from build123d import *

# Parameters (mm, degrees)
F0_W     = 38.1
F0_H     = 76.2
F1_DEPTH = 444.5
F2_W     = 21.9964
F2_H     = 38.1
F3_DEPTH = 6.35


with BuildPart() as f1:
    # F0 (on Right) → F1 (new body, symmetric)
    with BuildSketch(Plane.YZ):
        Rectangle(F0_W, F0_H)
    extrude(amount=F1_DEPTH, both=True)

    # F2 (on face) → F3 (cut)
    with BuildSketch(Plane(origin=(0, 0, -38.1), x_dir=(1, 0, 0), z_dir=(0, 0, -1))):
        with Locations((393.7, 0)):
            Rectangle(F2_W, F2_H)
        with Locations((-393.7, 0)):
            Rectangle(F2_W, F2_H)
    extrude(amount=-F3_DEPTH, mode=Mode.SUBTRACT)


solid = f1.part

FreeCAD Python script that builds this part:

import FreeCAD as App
import Part
import Sketcher

V = App.Vector
Q = App.Units.Quantity


def add_polygon(sketch, points):
    """Adds a closed chain of lines whose ends are joined by coincident constraints."""
    first, n = sketch.GeometryCount, len(points)
    for a, b in zip(points, points[1:] + points[:1]):
        sketch.addGeometry(Part.LineSegment(App.Vector(*a, 0), App.Vector(*b, 0)), False)
    for i in range(n):
        sketch.addConstraint(Sketcher.Constraint("Coincident", first + i, 2, first + (i + 1) % n, 1))

doc = App.newDocument("Part")
params = doc.addObject("Spreadsheet::Sheet", "Params")
for row, (alias, value) in enumerate([
    ("sketch1_height", "3 in"),
    ("sketch1_width", "1.5 in"),
    ("pad1_length", "35 in"),
    ("sketch2_height", "1.5 in"),
    ("sketch2_width", "0.866 in"),
    ("pocket1_length", "0.25 in"),
], start=1):
    params.set(f"A{row}", alias)
    params.set(f"B{row}", "=" + value)
    params.setAlias(f"B{row}", alias)

body = doc.addObject("PartDesign::Body", "Body")

sketch1 = body.newObject("Sketcher::SketchObject", "Sketch")
sketch1.AttachmentSupport = (doc.getObject("YZ_Plane"), [""])
sketch1.MapMode = "FlatFace"
add_polygon(sketch1, [(-19.05, 38.1), (-19.05, -38.1), (19.05, -38.1), (19.05, 38.1)])
sketch1.addConstraint([
    Sketcher.Constraint("Vertical", 0),
    Sketcher.Constraint("Horizontal", 1),
    Sketcher.Constraint("Vertical", 2),
    Sketcher.Constraint("Horizontal", 3),
    Sketcher.Constraint("Symmetric", 0, 2, 2, 2, -1, 1),
    Sketcher.Constraint("DistanceY", 0, 2, 0, 1, Q("3 in")),
    Sketcher.Constraint("DistanceX", 1, 1, 1, 2, Q("1.5 in")),
])
sketch1.setExpression("Constraints[9]", "Params.sketch1_height")
sketch1.setExpression("Constraints[10]", "Params.sketch1_width")
pad1 = body.newObject("PartDesign::Pad", "Pad")
pad1.Profile = sketch1
pad1.setExpression("Length", "Params.pad1_length")
pad1.Midplane = True

sketch2 = body.newObject("Sketcher::SketchObject", "Sketch001")
sketch2.AttachmentSupport = (doc.getObject("XY_Plane"), [""])
sketch2.MapMode = "FlatFace"
sketch2.AttachmentOffset = App.Placement(V(0, 0, -1.5 * 25.4), App.Rotation())
add_polygon(sketch2, [(382.7018, -19.05), (382.7018, 19.05), (404.6982, 19.05), (404.6982, -19.05)])
add_polygon(sketch2, [(-404.6982, -19.05), (-404.6982, 19.05), (-382.7018, 19.05), (-382.7018, -19.05)])
sketch2.addConstraint([
    Sketcher.Constraint("Vertical", 0),
    Sketcher.Constraint("Horizontal", 1),
    Sketcher.Constraint("Vertical", 2),
    Sketcher.Constraint("Horizontal", 3),
    Sketcher.Constraint("Vertical", 4),
    Sketcher.Constraint("Horizontal", 5),
    Sketcher.Constraint("Vertical", 6),
    Sketcher.Constraint("Horizontal", 7),
    Sketcher.Constraint("Symmetric", 2, 2, 4, 2, -1, 1),
    Sketcher.Constraint("Symmetric", 0, 2, 6, 2, -1, 1),
    Sketcher.Constraint("Horizontal", 1, 2, 4, 2),
    Sketcher.Constraint("DistanceY", 0, 1, 0, 2, Q("1.5 in")),
    Sketcher.Constraint("DistanceX", 4, 2, 0, 2, Q("31 in")),
    Sketcher.Constraint("DistanceX", 1, 1, 1, 2, Q("0.866 in")),
])
sketch2.setExpression("Constraints[19]", "Params.sketch2_height")
sketch2.setExpression("Constraints[21]", "Params.sketch2_width")
pocket1 = body.newObject("PartDesign::Pocket", "Pocket")
pocket1.Profile = sketch2
pocket1.setExpression("Length", "Params.pocket1_length")
pocket1.Reversed = True

doc.recompute()
